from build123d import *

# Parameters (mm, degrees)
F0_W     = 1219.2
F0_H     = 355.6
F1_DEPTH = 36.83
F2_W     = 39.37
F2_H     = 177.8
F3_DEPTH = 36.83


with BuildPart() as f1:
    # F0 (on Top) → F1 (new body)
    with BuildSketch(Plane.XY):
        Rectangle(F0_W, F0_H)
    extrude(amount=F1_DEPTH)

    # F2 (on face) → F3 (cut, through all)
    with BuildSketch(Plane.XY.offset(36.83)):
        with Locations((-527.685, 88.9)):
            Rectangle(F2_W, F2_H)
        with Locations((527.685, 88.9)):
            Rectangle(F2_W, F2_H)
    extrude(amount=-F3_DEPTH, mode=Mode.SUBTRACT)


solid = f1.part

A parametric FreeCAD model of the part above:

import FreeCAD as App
import Part
import Sketcher

V = App.Vector
Q = App.Units.Quantity

doc = App.newDocument("Part")
params = doc.addObject("Spreadsheet::Sheet", "Params")
for row, (alias, value) in enumerate([
    ("sketch1_width", "48 in"),
    ("sketch1_height", "14 in"),
    ("pad1_length", "1.45 in"),
    ("sketch2_height", "7 in"),
    ("sketch2_width", "1.55 in"),
], start=1):
    params.set(f"A{row}", alias)
    params.set(f"B{row}", "=" + value)
    params.setAlias(f"B{row}", alias)

body = doc.addObject("PartDesign::Body", "Body")

# Sketch on XY plane
sketch1 = doc.addObject("Sketcher::SketchObject", "Sketch")
body.addObject(sketch1)
sketch1.AttachmentSupport = (doc.XY_Plane, [""])
sketch1.MapMode = "FlatFace"
sketch1.addGeometry([
    Part.LineSegment(V(-609.6, 177.8, 0), V(-609.6, -177.8, 0)),
    Part.LineSegment(V(-609.6, -177.8, 0), V(609.6, -177.8, 0)),
    Part.LineSegment(V(609.6, -177.8, 0), V(609.6, 177.8, 0)),
    Part.LineSegment(V(609.6, 177.8, 0), V(-609.6, 177.8, 0)),
], False)
sketch1.addConstraint([
    Sketcher.Constraint("Coincident", 0, 2, 1, 1),
    Sketcher.Constraint("Coincident", 1, 2, 2, 1),
    Sketcher.Constraint("Coincident", 2, 2, 3, 1),
    Sketcher.Constraint("Coincident", 3, 2, 0, 1),
    Sketcher.Constraint("Vertical", 0),
    Sketcher.Constraint("Horizontal", 1),
    Sketcher.Constraint("Vertical", 2),
    Sketcher.Constraint("Horizontal", 3),
    Sketcher.Constraint("Symmetric", 0, 2, 2, 2, -1, 1),
    Sketcher.Constraint("DistanceX", 1, 1, 1, 2, Q("48 in")),
    Sketcher.Constraint("DistanceY", 0, 2, 0, 1, Q("14 in")),
])
sketch1.setExpression("Constraints[9]", "Params.sketch1_width")
sketch1.setExpression("Constraints[10]", "Params.sketch1_height")
pad1 = doc.addObject("PartDesign::Pad", "Pad")
body.addObject(pad1)
pad1.Profile = sketch1
pad1.setExpression("Length", "Params.pad1_length")

# Sketch on XY plane
sketch2 = doc.addObject("Sketcher::SketchObject", "Sketch001")
body.addObject(sketch2)
sketch2.AttachmentSupport = (doc.XY_Plane, [""])
sketch2.MapMode = "FlatFace"
sketch2.AttachmentOffset = App.Placement(V(0, 0, 1.45 * 25.4), App.Rotation())
sketch2.addGeometry([
    Part.LineSegment(V(-547.37, 177.8, 0), V(-547.37, 0, 0)),  # 0
    Part.LineSegment(V(-547.37, 0, 0), V(-508, 0, 0)),  # 1
    Part.LineSegment(V(-508, 0, 0), V(-508, 177.8, 0)),  # 2
    Part.LineSegment(V(-508, 177.8, 0), V(-547.37, 177.8, 0)),  # 3
    Part.LineSegment(V(508, 177.8, 0), V(508, 0, 0)),  # 4
    Part.LineSegment(V(508, 0, 0), V(547.37, 0, 0)),  # 5
    Part.LineSegment(V(547.37, 0, 0), V(547.37, 177.8, 0)),  # 6
    Part.LineSegment(V(547.37, 177.8, 0), V(508, 177.8, 0)),  # 7
], False)
sketch2.addConstraint([
    Sketcher.Constraint("Coincident", 0, 2, 1, 1),
    Sketcher.Constraint("Coincident", 1, 2, 2, 1),
    Sketcher.Constraint("Coincident", 2, 2, 3, 1),
    Sketcher.Constraint("Coincident", 3, 2, 0, 1),
    Sketcher.Constraint("Coincident", 4, 2, 5, 1),
    Sketcher.Constraint("Coincident", 5, 2, 6, 1),
    Sketcher.Constraint("Coincident", 6, 2, 7, 1),
    Sketcher.Constraint("Coincident", 7, 2, 4, 1),
    Sketcher.Constraint("Vertical", 0),
    Sketcher.Constraint("Horizontal", 1),
    Sketcher.Constraint("Vertical", 2),
    Sketcher.Constraint("Horizontal", 3),
    Sketcher.Constraint("Vertical", 4),
    Sketcher.Constraint("Horizontal", 5),
    Sketcher.Constraint("Vertical", 6),
    Sketcher.Constraint("Horizontal", 7),
    Sketcher.Constraint("Symmetric", 1, 2, 4, 2, -1, 1),
    Sketcher.Constraint("Symmetric", 0, 2, 5, 2, -2),
    Sketcher.Constraint("Horizontal", 3, 2, 6, 2),
    Sketcher.Constraint("DistanceY", 0, 2, 0, 1, Q("7 in")),
    Sketcher.Constraint("DistanceX", 1, 2, -1, 1, Q("20 in")),
    Sketcher.Constraint("DistanceX", 1, 1, 1, 2, Q("1.55 in")),
])
sketch2.setExpression("Constraints[19]", "Params.sketch2_height")
sketch2.setExpression("Constraints[21]", "Params.sketch2_width")
pocket1 = doc.addObject("PartDesign::Pocket", "Pocket")
body.addObject(pocket1)
pocket1.Profile = sketch2
pocket1.Type = "ThroughAll"

doc.recompute()
